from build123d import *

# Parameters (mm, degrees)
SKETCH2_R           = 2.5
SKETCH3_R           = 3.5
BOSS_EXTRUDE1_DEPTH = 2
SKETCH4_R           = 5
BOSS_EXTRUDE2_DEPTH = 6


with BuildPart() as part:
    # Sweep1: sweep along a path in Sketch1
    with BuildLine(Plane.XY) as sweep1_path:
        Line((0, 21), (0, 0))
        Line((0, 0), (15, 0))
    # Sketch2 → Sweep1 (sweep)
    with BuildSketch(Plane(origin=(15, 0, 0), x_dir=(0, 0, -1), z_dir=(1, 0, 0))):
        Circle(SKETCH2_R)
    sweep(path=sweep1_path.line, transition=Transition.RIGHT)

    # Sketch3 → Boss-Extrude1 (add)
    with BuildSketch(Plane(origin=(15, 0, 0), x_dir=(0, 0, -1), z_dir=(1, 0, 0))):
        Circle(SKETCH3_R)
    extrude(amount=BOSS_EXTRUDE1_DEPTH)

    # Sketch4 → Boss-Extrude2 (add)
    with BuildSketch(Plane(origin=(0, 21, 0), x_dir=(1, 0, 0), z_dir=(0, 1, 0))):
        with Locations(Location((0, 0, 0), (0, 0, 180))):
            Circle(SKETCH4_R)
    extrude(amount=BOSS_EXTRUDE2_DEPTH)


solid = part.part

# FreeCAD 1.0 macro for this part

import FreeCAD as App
import Part
import Sketcher

V = App.Vector
Q = App.Units.Quantity

doc = App.newDocument("Part")
body = doc.addObject("PartDesign::Body", "Body")

# Sketch on YZ plane
sketch1 = body.newObject("Sketcher::SketchObject", "Sketch")
sketch1.AttachmentSupport = (doc.getObject("YZ_Plane"), [""])
sketch1.MapMode = "FlatFace"
sketch1.AttachmentOffset = App.Placement(V(0, 0, 15), App.Rotation())
sketch1.addGeometry(Part.Circle(V(0, 0, 0), V(0, 0, 1), 2.5), False)
sketch1.addConstraint([
    Sketcher.Constraint("Coincident", 0, 3, -1, 1),
    Sketcher.Constraint("Diameter", 0, Q("5 mm")),
])

# Sketch on XY plane
sketch2 = body.newObject("Sketcher::SketchObject", "Sketch001")
sketch2.AttachmentSupport = (doc.getObject("XY_Plane"), [""])
sketch2.MapMode = "FlatFace"
sketch2.addGeometry([
    Part.LineSegment(V(0, 21, 0), V(0, 0, 0)),
    Part.LineSegment(V(0, 0, 0), V(15, 0, 0)),
], False)
sketch2.addConstraint([
    Sketcher.Constraint("Coincident", 0, 2, 1, 1),
    Sketcher.Constraint("Vertical", 0),
    Sketcher.Constraint("Horizontal", 1),
    Sketcher.Constraint("Coincident", 0, 2, -1, 1),
    Sketcher.Constraint("DistanceX", 1, 1, 1, 2, Q("15 mm")),
    Sketcher.Constraint("DistanceY", 0, 2, 0, 1, Q("21 mm")),
])
doc.recompute()

additivepipe = body.newObject("PartDesign::AdditivePipe", "AdditivePipe")
additivepipe.Profile = sketch1
additivepipe.Spine = (sketch2, ["Edge1", "Edge2"])
additivepipe.Transition = "Right corner"

# Sketch on YZ plane
sketch3 = body.newObject("Sketcher::SketchObject", "Sketch002")
sketch3.AttachmentSupport = (doc.getObject("YZ_Plane"), [""])
sketch3.MapMode = "FlatFace"
sketch3.AttachmentOffset = App.Placement(V(0, 0, 15), App.Rotation())
sketch3.addGeometry(Part.Circle(V(0, 0, 0), V(0, 0, 1), 3.5), False)
sketch3.addConstraint([
    Sketcher.Constraint("Coincident", 0, 3, -1, 1),
    Sketcher.Constraint("Diameter", 0, Q("7 mm")),
])
pad1 = body.newObject("PartDesign::Pad", "Pad")
pad1.Profile = sketch3
pad1.Length = 2

# Sketch on XZ plane
sketch4 = body.newObject("Sketcher::SketchObject", "Sketch003")
sketch4.AttachmentSupport = (doc.getObject("XZ_Plane"), [""])
sketch4.MapMode = "FlatFace"
sketch4.AttachmentOffset = App.Placement(V(0, 0, -21), App.Rotation())
sketch4.addGeometry(Part.Circle(V(0, 0, 0), V(0, 0, 1), 5), False)
sketch4.addConstraint([
    Sketcher.Constraint("Coincident", 0, 3, -1, 1),
    Sketcher.Constraint("Diameter", 0, Q("10 mm")),
])
pad2 = body.newObject("PartDesign::Pad", "Pad001")
pad2.Profile = sketch4
pad2.Length = 6
pad2.Reversed = True

doc.recompute()
